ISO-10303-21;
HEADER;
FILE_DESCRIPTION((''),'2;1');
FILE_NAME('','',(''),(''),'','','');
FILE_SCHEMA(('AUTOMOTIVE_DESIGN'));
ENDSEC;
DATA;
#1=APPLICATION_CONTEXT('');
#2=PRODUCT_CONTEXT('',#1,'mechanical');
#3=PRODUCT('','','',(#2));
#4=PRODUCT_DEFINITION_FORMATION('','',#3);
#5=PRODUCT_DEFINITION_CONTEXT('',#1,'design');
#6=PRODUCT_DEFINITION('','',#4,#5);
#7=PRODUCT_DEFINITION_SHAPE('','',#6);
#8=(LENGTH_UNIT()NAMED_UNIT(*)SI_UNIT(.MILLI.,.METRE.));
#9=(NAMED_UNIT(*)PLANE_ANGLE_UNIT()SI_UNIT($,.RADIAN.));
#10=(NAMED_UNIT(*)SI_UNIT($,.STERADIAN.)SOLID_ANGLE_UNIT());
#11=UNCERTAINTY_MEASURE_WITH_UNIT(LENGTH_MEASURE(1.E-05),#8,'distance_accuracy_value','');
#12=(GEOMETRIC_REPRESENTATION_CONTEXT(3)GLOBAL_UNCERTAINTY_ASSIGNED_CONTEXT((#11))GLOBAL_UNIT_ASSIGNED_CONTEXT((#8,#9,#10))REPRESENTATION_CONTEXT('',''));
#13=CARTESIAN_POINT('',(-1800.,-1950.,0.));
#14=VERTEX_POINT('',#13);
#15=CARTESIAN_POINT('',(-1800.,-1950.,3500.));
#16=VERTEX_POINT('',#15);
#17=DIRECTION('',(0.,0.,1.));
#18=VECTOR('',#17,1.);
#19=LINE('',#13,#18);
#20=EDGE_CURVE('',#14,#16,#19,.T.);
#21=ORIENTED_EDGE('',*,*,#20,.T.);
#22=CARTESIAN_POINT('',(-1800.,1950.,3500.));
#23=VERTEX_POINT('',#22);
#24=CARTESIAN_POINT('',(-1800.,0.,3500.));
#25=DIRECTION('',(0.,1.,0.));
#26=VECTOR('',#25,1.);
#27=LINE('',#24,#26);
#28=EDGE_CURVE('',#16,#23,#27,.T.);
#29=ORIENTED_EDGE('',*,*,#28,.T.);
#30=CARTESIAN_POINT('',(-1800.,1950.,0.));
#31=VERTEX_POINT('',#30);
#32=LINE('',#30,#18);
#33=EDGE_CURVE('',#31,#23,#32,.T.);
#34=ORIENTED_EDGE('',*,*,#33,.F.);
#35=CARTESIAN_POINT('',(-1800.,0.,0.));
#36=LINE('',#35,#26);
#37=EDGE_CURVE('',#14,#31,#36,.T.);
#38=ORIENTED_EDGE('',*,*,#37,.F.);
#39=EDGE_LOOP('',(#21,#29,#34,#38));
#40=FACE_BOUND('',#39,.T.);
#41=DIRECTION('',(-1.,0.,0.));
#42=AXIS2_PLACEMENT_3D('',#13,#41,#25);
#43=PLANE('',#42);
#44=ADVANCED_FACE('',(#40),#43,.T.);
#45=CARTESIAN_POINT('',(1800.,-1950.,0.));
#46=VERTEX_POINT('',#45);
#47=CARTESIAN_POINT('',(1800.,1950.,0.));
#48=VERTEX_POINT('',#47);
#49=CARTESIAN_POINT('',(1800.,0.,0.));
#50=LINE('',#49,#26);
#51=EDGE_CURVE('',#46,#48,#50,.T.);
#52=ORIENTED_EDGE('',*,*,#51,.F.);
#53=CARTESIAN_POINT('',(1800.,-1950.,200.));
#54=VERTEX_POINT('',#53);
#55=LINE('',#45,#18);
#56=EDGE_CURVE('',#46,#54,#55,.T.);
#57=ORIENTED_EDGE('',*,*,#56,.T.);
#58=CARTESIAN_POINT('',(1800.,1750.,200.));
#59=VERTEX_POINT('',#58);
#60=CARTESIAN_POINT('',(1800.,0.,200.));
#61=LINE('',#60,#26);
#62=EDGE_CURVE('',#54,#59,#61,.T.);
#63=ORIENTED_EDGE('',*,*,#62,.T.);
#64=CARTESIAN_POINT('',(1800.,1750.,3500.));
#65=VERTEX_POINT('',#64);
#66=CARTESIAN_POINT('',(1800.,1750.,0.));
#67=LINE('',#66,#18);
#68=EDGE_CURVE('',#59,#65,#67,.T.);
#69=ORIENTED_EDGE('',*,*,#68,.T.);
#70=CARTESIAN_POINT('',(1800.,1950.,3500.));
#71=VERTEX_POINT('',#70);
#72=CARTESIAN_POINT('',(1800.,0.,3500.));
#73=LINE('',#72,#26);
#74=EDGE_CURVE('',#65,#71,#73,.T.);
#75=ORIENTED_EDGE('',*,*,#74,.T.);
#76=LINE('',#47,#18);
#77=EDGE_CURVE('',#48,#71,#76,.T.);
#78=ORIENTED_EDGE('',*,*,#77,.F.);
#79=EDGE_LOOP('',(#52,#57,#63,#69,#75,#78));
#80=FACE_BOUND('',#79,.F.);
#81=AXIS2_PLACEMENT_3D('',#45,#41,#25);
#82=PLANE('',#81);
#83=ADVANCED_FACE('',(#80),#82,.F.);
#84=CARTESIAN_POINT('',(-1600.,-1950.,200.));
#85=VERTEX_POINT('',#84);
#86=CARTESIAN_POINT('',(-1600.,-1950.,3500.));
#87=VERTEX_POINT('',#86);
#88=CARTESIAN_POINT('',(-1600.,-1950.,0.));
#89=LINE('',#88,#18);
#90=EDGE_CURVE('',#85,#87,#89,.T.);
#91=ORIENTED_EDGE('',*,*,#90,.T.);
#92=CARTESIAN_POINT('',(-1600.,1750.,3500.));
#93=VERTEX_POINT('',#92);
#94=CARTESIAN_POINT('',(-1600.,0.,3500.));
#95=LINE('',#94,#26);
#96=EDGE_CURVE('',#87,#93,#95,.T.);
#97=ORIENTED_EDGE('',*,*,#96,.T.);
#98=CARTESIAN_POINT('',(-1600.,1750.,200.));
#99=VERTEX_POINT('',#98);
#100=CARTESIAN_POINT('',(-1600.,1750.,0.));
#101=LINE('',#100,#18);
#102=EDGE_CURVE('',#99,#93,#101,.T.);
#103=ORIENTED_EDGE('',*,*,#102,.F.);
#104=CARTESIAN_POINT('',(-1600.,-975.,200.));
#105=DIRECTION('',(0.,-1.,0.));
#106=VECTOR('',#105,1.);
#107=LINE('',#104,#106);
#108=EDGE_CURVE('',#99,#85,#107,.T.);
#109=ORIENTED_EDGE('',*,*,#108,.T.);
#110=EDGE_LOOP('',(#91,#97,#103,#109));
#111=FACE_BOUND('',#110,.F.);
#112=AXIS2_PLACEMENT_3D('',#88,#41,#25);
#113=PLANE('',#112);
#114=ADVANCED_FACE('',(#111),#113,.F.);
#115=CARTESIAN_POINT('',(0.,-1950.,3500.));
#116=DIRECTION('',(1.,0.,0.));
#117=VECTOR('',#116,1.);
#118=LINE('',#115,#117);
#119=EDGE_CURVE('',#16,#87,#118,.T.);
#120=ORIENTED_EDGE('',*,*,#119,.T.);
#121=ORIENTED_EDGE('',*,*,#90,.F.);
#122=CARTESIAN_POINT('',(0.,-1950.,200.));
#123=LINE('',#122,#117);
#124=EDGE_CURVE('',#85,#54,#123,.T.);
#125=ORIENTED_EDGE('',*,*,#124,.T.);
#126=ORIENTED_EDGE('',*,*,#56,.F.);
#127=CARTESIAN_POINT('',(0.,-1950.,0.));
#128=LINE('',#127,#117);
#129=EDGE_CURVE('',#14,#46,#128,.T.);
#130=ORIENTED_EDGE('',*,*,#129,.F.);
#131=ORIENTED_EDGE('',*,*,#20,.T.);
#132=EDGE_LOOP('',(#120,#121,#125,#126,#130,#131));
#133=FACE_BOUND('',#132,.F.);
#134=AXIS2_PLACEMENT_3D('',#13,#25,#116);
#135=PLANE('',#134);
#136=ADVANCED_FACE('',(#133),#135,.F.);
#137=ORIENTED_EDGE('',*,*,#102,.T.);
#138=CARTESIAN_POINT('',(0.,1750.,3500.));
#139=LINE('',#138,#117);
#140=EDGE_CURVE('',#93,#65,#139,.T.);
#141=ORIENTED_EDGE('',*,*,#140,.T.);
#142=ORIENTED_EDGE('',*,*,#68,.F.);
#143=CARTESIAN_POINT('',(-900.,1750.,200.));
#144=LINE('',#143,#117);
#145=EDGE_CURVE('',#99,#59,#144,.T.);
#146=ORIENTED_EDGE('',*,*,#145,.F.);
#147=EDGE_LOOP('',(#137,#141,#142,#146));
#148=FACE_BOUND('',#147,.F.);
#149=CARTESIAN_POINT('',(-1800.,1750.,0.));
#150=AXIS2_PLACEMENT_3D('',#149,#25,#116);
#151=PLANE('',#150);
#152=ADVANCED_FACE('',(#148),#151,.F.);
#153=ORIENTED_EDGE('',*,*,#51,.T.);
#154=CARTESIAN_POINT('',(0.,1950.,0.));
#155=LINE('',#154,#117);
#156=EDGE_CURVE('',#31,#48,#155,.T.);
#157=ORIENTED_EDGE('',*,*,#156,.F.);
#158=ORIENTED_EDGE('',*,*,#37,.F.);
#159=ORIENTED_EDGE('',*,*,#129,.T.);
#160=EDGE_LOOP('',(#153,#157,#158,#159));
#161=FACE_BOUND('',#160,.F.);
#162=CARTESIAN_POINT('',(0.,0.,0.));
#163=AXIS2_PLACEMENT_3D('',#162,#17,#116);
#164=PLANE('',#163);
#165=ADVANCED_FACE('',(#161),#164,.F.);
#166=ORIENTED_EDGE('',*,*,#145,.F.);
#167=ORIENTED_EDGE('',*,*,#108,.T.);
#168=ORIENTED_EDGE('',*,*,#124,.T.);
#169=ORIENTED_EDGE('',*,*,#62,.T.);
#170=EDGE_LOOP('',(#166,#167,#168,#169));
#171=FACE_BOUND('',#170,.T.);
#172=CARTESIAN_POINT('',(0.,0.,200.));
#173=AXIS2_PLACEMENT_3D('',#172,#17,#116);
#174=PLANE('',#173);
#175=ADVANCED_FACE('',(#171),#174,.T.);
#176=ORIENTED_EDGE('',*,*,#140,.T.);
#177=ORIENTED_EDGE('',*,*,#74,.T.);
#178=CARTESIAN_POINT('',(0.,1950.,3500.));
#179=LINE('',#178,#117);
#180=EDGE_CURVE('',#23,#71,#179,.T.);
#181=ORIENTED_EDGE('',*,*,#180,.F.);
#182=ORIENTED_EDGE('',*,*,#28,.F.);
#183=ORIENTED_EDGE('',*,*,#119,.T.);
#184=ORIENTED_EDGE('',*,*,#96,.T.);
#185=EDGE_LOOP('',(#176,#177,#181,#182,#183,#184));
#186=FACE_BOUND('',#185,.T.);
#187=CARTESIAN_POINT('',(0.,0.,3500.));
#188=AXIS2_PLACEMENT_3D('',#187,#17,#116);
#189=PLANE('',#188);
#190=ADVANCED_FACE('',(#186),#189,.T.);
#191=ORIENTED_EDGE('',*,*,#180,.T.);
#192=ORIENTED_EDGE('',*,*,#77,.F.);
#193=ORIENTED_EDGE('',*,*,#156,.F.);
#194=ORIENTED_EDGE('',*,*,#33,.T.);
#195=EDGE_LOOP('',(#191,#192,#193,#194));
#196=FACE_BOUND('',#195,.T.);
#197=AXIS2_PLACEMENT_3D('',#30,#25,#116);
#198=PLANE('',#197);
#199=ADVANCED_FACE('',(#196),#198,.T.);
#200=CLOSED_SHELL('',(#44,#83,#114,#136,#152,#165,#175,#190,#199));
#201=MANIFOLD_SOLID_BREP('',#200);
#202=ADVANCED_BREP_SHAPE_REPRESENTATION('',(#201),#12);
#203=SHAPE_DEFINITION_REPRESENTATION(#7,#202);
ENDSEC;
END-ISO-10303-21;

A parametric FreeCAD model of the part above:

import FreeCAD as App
import Part
import Sketcher
from FreeCAD import Vector
Q = App.Units.Quantity


def faces_at(feature, points):
    """Names of the faces that lie closest to the given points."""
    faces = feature.Shape.Faces
    near = lambda p: min(range(len(faces)), key=lambda i: faces[i].distToShape(Part.Vertex(*p))[0])
    return sorted({f"Face{near(p) + 1}" for p in points})

doc = App.newDocument("Part")
body = doc.addObject("PartDesign::Body", "Body")

# Sketch on XY plane
sketch1 = body.newObject("Sketcher::SketchObject", "Sketch")
sketch1.AttachmentSupport = (doc.getObject("XY_Plane"), [""])
sketch1.MapMode = "FlatFace"
sketch1.addGeometry([
    Part.LineSegment(Vector(-1800, 1950, 0), Vector(-1800, -1950, 0)),
    Part.LineSegment(Vector(-1800, -1950, 0), Vector(1800, -1950, 0)),
    Part.LineSegment(Vector(1800, -1950, 0), Vector(1800, 1950, 0)),
    Part.LineSegment(Vector(1800, 1950, 0), Vector(-1800, 1950, 0)),
], False)
sketch1.addConstraint([
    Sketcher.Constraint("Coincident", 0, 2, 1, 1),
    Sketcher.Constraint("Coincident", 1, 2, 2, 1),
    Sketcher.Constraint("Coincident", 2, 2, 3, 1),
    Sketcher.Constraint("Coincident", 3, 2, 0, 1),
    Sketcher.Constraint("Vertical", 0),
    Sketcher.Constraint("Horizontal", 1),
    Sketcher.Constraint("Vertical", 2),
    Sketcher.Constraint("Horizontal", 3),
    Sketcher.Constraint("Symmetric", 0, 2, 2, 2, -1, 1),
    Sketcher.Constraint("DistanceX", 1, 1, 1, 2, Q("3600 mm")),
    Sketcher.Constraint("DistanceY", 0, 2, 0, 1, Q("3900 mm")),
])
pad1 = body.newObject("PartDesign::Pad", "Pad")
pad1.Profile = sketch1
pad1.Length = 3500
doc.recompute()

thickness = body.newObject("PartDesign::Thickness", "Thickness")
thickness.Base = (pad1, faces_at(pad1, [(0, 0, 3500), (1800, 0, 1750), (0, -1950, 1750)]))
thickness.Value = 200
thickness.Reversed = True
thickness.Join = "Arc"

doc.recompute()
